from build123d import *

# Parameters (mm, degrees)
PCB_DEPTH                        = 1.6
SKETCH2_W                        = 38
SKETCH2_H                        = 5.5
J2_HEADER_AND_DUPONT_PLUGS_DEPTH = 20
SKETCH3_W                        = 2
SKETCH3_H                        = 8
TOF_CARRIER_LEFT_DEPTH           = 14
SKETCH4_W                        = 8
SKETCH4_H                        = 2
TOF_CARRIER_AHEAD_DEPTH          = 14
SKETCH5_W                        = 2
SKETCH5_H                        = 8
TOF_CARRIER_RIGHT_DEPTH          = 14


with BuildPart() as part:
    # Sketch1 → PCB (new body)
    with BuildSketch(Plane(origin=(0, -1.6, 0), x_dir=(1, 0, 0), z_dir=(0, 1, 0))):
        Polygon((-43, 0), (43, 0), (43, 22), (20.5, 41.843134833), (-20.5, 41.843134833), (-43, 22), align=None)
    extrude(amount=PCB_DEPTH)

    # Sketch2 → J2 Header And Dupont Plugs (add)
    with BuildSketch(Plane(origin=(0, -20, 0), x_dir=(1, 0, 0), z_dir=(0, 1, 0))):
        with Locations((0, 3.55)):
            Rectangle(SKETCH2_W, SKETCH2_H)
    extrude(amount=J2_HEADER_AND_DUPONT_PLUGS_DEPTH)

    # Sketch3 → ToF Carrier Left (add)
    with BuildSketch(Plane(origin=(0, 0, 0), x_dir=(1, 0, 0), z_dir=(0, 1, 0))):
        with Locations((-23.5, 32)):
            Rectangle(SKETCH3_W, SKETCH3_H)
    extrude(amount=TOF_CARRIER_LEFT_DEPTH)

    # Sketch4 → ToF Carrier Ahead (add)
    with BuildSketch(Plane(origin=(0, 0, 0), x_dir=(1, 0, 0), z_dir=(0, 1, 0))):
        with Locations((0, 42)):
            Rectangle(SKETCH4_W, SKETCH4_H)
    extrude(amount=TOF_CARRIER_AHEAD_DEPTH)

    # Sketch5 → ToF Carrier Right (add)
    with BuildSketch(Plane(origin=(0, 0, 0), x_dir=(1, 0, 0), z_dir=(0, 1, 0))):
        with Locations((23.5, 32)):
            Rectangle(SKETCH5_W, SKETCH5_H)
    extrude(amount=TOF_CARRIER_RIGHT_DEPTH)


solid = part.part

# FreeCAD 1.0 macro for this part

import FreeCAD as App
import Part
import Sketcher
Q = App.Units.Quantity


def add_polygon(sketch, points):
    """Adds a closed chain of lines whose ends are joined by coincident constraints."""
    first, n = sketch.GeometryCount, len(points)
    for a, b in zip(points, points[1:] + points[:1]):
        sketch.addGeometry(Part.LineSegment(App.Vector(*a, 0), App.Vector(*b, 0)), False)
    for i in range(n):
        sketch.addConstraint(Sketcher.Constraint("Coincident", first + i, 2, first + (i + 1) % n, 1))

doc = App.newDocument("Part")
body = doc.addObject("PartDesign::Body", "Body")

sketch1 = doc.addObject("Sketcher::SketchObject", "Sketch")
body.addObject(sketch1)
sketch1.AttachmentSupport = (doc.XZ_Plane, [""])
sketch1.MapMode = "FlatFace"
sketch1.AttachmentOffset = App.Placement(App.Vector(0, 0, 1.6), App.Rotation())
add_polygon(sketch1, [(-43, 0), (43, 0), (43, -22), (20, -42), (-20, -42), (-43, -22)])
sketch1.addConstraint([
    Sketcher.Constraint("Horizontal", 0),
    Sketcher.Constraint("Vertical", 1),
    Sketcher.Constraint("Horizontal", 3),
    Sketcher.Constraint("Vertical", 5),
    Sketcher.Constraint("Symmetric", 0, 2, 5, 2, -1, 1),
    Sketcher.Constraint("Horizontal", 1, 2, 4, 2),
    Sketcher.Constraint("Equal", 2, 4),
    Sketcher.Constraint("DistanceX", 0, 1, 0, 2, Q("86 mm")),
    Sketcher.Constraint("DistanceX", 3, 2, 3, 1, Q("41 mm")),
    Sketcher.Constraint("DistanceY", 1, 2, 1, 1, Q("22 mm")),
    Sketcher.Constraint("Distance", 2, Q("30 mm")),
])
pad1 = doc.addObject("PartDesign::Pad", "Pad")
body.addObject(pad1)
pad1.Profile = sketch1
pad1.Length = 1.6
pad1.Reversed = True

sketch2 = doc.addObject("Sketcher::SketchObject", "Sketch001")
body.addObject(sketch2)
sketch2.AttachmentSupport = (doc.XZ_Plane, [""])
sketch2.MapMode = "FlatFace"
sketch2.AttachmentOffset = App.Placement(App.Vector(0, 0, 20), App.Rotation())
add_polygon(sketch2, [(-19, -6), (-19, -1), (19, -1), (19, -6)])
sketch2.addConstraint([
    Sketcher.Constraint("Vertical", 0),
    Sketcher.Constraint("Horizontal", 1),
    Sketcher.Constraint("Vertical", 2),
    Sketcher.Constraint("Horizontal", 3),
    Sketcher.Constraint("DistanceX", 1, 1, 1, 2, Q("38 mm")),
    Sketcher.Constraint("DistanceY", 0, 1, 0, 2, Q("5.5 mm")),
    Sketcher.Constraint("DistanceX", 0, 2, -1, 1, Q("19 mm")),
    Sketcher.Constraint("DistanceY", 0, 2, -1, 1, Q("0.8 mm")),
])
pad2 = doc.addObject("PartDesign::Pad", "Pad001")
body.addObject(pad2)
pad2.Profile = sketch2
pad2.Length = 20
pad2.Reversed = True

sketch3 = doc.addObject("Sketcher::SketchObject", "Sketch002")
body.addObject(sketch3)
sketch3.AttachmentSupport = (doc.XZ_Plane, [""])
sketch3.MapMode = "FlatFace"
add_polygon(sketch3, [(-24.5, -36), (-24.5, -28), (-22.5, -28), (-22.5, -36)])
sketch3.addConstraint([
    Sketcher.Constraint("Vertical", 0),
    Sketcher.Constraint("Horizontal", 1),
    Sketcher.Constraint("Vertical", 2),
    Sketcher.Constraint("Horizontal", 3),
    Sketcher.Constraint("DistanceX", 1, 1, 1, 2, Q("2 mm")),
    Sketcher.Constraint("DistanceY", 0, 1, 0, 2, Q("8 mm")),
    Sketcher.Constraint("DistanceY", 0, 2, -1, 1, Q("28 mm")),
    Sketcher.Constraint("DistanceX", 0, 2, -1, 1, Q("24.5 mm")),
])
pad3 = doc.addObject("PartDesign::Pad", "Pad002")
body.addObject(pad3)
pad3.Profile = sketch3
pad3.Length = 14
pad3.Reversed = True

sketch4 = doc.addObject("Sketcher::SketchObject", "Sketch003")
body.addObject(sketch4)
sketch4.AttachmentSupport = (doc.XZ_Plane, [""])
sketch4.MapMode = "FlatFace"
add_polygon(sketch4, [(-4, -43), (-4, -41), (4, -41), (4, -43)])
sketch4.addConstraint([
    Sketcher.Constraint("Vertical", 0),
    Sketcher.Constraint("Horizontal", 1),
    Sketcher.Constraint("Vertical", 2),
    Sketcher.Constraint("Horizontal", 3),
    Sketcher.Constraint("DistanceX", 1, 1, 1, 2, Q("8 mm")),
    Sketcher.Constraint("DistanceY", 0, 1, 0, 2, Q("2 mm")),
    Sketcher.Constraint("DistanceX", 0, 2, -1, 1, Q("4 mm")),
    Sketcher.Constraint("DistanceY", 0, 2, -1, 1, Q("41 mm")),
])
pad4 = doc.addObject("PartDesign::Pad", "Pad003")
body.addObject(pad4)
pad4.Profile = sketch4
pad4.Length = 14
pad4.Reversed = True

sketch5 = doc.addObject("Sketcher::SketchObject", "Sketch004")
body.addObject(sketch5)
sketch5.AttachmentSupport = (doc.XZ_Plane, [""])
sketch5.MapMode = "FlatFace"
add_polygon(sketch5, [(22.5, -36), (22.5, -28), (24.5, -28), (24.5, -36)])
sketch5.addConstraint([
    Sketcher.Constraint("Vertical", 0),
    Sketcher.Constraint("Horizontal", 1),
    Sketcher.Constraint("Vertical", 2),
    Sketcher.Constraint("Horizontal", 3),
    Sketcher.Constraint("DistanceX", 1, 1, 1, 2, Q("2 mm")),
    Sketcher.Constraint("DistanceY", 0, 1, 0, 2, Q("8 mm")),
    Sketcher.Constraint("DistanceY", 0, 2, -1, 1, Q("28 mm")),
    Sketcher.Constraint("DistanceX", -1, 1, 0, 2, Q("22.5 mm")),
])
pad5 = doc.addObject("PartDesign::Pad", "Pad004")
body.addObject(pad5)
pad5.Profile = sketch5
pad5.Length = 14
pad5.Reversed = True

doc.recompute()
